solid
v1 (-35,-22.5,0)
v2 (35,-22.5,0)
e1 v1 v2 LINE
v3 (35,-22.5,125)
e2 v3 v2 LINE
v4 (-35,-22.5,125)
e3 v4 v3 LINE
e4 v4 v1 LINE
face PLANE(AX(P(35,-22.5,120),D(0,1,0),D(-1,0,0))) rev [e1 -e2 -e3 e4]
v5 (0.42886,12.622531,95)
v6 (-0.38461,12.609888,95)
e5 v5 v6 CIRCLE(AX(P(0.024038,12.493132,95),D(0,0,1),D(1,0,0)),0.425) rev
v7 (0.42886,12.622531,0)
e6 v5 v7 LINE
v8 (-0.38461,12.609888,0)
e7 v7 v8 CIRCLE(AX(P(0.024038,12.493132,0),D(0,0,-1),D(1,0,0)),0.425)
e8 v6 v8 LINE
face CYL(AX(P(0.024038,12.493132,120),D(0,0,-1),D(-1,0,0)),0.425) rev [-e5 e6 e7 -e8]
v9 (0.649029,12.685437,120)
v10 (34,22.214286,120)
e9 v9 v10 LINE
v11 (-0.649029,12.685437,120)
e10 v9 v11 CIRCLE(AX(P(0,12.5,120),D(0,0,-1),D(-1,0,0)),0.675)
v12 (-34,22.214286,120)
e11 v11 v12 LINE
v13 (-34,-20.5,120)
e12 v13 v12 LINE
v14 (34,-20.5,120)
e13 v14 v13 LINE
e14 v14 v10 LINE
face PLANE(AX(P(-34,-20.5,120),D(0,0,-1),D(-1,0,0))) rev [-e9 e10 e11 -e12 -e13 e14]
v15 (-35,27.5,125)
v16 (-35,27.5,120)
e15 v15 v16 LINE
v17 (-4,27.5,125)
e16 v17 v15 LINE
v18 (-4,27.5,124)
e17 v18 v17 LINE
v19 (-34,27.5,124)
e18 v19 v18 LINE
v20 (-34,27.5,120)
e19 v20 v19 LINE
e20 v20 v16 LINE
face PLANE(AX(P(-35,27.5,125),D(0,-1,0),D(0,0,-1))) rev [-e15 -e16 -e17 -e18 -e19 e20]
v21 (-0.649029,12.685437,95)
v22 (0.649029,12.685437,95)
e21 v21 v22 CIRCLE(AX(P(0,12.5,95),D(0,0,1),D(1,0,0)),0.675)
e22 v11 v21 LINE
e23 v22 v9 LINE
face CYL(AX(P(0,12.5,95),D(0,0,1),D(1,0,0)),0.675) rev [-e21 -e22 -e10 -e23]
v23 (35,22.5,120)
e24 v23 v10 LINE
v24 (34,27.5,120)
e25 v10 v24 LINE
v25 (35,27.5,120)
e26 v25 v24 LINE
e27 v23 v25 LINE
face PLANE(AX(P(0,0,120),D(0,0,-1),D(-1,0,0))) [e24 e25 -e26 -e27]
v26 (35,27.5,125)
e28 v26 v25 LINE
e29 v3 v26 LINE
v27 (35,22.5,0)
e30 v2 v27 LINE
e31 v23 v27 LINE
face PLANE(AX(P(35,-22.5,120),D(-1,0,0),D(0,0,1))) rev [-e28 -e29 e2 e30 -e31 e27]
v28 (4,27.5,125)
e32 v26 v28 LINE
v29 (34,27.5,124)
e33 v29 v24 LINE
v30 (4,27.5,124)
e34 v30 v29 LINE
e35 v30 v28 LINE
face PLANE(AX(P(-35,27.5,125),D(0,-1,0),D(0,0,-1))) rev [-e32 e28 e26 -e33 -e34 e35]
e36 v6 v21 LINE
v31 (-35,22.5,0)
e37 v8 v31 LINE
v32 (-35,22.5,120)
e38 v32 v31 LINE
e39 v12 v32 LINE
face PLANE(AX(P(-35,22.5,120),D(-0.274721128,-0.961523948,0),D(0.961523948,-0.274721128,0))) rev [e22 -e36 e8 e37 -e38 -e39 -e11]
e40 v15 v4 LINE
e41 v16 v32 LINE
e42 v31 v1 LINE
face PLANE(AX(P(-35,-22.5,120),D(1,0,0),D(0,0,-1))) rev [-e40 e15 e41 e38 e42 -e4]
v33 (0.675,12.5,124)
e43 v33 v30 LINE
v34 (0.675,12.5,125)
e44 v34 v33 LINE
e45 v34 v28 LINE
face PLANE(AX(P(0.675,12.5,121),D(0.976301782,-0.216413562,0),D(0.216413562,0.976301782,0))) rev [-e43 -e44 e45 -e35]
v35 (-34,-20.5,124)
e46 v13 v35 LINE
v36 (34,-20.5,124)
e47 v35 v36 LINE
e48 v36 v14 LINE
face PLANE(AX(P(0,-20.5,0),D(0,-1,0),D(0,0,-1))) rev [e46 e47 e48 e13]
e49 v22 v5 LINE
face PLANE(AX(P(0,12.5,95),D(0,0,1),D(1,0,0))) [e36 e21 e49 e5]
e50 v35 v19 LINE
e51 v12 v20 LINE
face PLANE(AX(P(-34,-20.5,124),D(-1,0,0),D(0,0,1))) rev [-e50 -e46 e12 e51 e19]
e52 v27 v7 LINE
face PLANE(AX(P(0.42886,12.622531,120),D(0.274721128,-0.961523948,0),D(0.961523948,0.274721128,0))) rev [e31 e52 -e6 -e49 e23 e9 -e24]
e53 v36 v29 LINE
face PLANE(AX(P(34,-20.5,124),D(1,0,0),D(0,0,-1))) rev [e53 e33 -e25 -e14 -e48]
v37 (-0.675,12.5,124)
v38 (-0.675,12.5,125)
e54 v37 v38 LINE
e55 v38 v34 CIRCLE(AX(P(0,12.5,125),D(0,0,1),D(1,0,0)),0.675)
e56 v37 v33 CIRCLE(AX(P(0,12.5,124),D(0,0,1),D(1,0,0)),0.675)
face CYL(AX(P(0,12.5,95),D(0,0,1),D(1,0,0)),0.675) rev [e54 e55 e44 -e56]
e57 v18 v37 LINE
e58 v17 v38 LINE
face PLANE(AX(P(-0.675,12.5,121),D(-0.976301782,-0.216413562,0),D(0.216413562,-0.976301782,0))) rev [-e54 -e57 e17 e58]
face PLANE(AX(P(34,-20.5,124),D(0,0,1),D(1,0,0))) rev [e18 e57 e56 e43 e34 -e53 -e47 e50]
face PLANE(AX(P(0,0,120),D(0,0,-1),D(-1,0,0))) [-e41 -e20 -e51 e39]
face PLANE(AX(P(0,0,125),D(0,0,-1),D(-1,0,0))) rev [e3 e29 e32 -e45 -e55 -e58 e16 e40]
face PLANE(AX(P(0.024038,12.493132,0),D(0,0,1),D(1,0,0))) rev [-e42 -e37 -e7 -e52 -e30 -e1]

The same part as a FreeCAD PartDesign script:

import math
import FreeCAD as App
import Part
import Sketcher

doc = App.newDocument("Part")
body = doc.addObject("PartDesign::Body", "Body")

sketch1 = body.newObject("Sketcher::SketchObject", "Sketch")
sketch1.AttachmentSupport = (doc.getObject("XY_Plane"), [""])
sketch1.MapMode = "FlatFace"
sketch1.addGeometry([
    Part.LineSegment(App.Vector(-35, -22.5, 0), App.Vector(35, -22.5, 0)),
    Part.LineSegment(App.Vector(35, -22.5, 0), App.Vector(35, 22.5, 0)),
    Part.LineSegment(App.Vector(35, 22.5, 0), App.Vector(0.43, 12.62, 0)),
    Part.ArcOfCircle(Part.Circle(App.Vector(0.02, 12.49, 0), App.Vector(0, 0, 1), 0.42), math.radians(164), math.radians(378)),
    Part.LineSegment(App.Vector(-0.38, 12.61, 0), App.Vector(-35, 22.5, 0)),
    Part.LineSegment(App.Vector(-35, 22.5, 0), App.Vector(-35, -22.5, 0)),
], False)
sketch1.addConstraint([
    Sketcher.Constraint("Coincident", 0, 2, 1, 1),
    Sketcher.Constraint("Coincident", 1, 2, 2, 1),
    Sketcher.Constraint("Coincident", 2, 2, 3, 2),
    Sketcher.Constraint("Coincident", 3, 1, 4, 1),
    Sketcher.Constraint("Coincident", 4, 2, 5, 1),
    Sketcher.Constraint("Coincident", 5, 2, 0, 1),
    Sketcher.Constraint("Horizontal", 0),
    Sketcher.Constraint("Vertical", 1),
    Sketcher.Constraint("Vertical", 5),
    Sketcher.Constraint("Symmetric", 0, 2, 4, 2, -1, 1),
    Sketcher.Constraint("Horizontal", 1, 2, 4, 2),
    Sketcher.Constraint("DistanceX", 0, 1, 0, 2, 70.0),
    Sketcher.Constraint("DistanceY", 1, 1, 1, 2, 45.0),
    Sketcher.Constraint("Radius", 3, 0.425),
    Sketcher.Constraint("DistanceY", 3, 3, 2, 2, 0.129399),
    Sketcher.Constraint("Distance", 2, 35.954528),
    Sketcher.Constraint("Distance", 4, 36.000549),
    Sketcher.Constraint("DistanceX", 3, 1, -1, 1, 0.38461),
])
pad1 = body.newObject("PartDesign::Pad", "Pad")
pad1.Profile = sketch1
pad1.Length = 120

sketch2 = body.newObject("Sketcher::SketchObject", "Sketch001")
sketch2.AttachmentSupport = (doc.getObject("XY_Plane"), [""])
sketch2.MapMode = "FlatFace"
sketch2.AttachmentOffset = App.Placement(App.Vector(0, 0, 120), App.Rotation())
sketch2.addGeometry([
    Part.LineSegment(App.Vector(-35, 28, 0), App.Vector(-35, -22, 0)),
    Part.LineSegment(App.Vector(-35, -22, 0), App.Vector(35, -22, 0)),
    Part.LineSegment(App.Vector(35, -22, 0), App.Vector(35, 28, 0)),
    Part.LineSegment(App.Vector(35, 28, 0), App.Vector(-35, 28, 0)),
], False)
sketch2.addConstraint([
    Sketcher.Constraint("Coincident", 0, 2, 1, 1),
    Sketcher.Constraint("Coincident", 1, 2, 2, 1),
    Sketcher.Constraint("Coincident", 2, 2, 3, 1),
    Sketcher.Constraint("Coincident", 3, 2, 0, 1),
    Sketcher.Constraint("Vertical", 0),
    Sketcher.Constraint("Horizontal", 1),
    Sketcher.Constraint("Vertical", 2),
    Sketcher.Constraint("Horizontal", 3),
    Sketcher.Constraint("DistanceX", 1, 1, 1, 2, 70.0),
    Sketcher.Constraint("DistanceY", 0, 2, 0, 1, 50.0),
    Sketcher.Constraint("DistanceX", 0, 2, -1, 1, 35.0),
    Sketcher.Constraint("DistanceY", 0, 2, -1, 1, 22.5),
])
pad2 = body.newObject("PartDesign::Pad", "Pad001")
pad2.Profile = sketch2
pad2.Length = 5

sketch3 = body.newObject("Sketcher::SketchObject", "Sketch002")
sketch3.AttachmentSupport = (doc.getObject("XZ_Plane"), [""])
sketch3.MapMode = "FlatFace"
sketch3.AttachmentOffset = App.Placement(App.Vector(0, 0, -27.5), App.Rotation())
sketch3.addGeometry([
    Part.LineSegment(App.Vector(-34, 120, 0), App.Vector(-34, 124, 0)),
    Part.LineSegment(App.Vector(-34, 124, 0), App.Vector(34, 124, 0)),
    Part.LineSegment(App.Vector(34, 124, 0), App.Vector(34, 120, 0)),
    Part.LineSegment(App.Vector(34, 120, 0), App.Vector(-34, 120, 0)),
], False)
sketch3.addConstraint([
    Sketcher.Constraint("Coincident", 0, 2, 1, 1),
    Sketcher.Constraint("Coincident", 1, 2, 2, 1),
    Sketcher.Constraint("Coincident", 2, 2, 3, 1),
    Sketcher.Constraint("Coincident", 3, 2, 0, 1),
    Sketcher.Constraint("Vertical", 0),
    Sketcher.Constraint("Horizontal", 1),
    Sketcher.Constraint("Vertical", 2),
    Sketcher.Constraint("Horizontal", 3),
    Sketcher.Constraint("DistanceX", 1, 1, 1, 2, 68.0),
    Sketcher.Constraint("DistanceY", 0, 1, 0, 2, 4.0),
    Sketcher.Constraint("DistanceX", 0, 2, -1, 1, 34.0),
    Sketcher.Constraint("DistanceY", -1, 1, 0, 2, 124.0),
])
pocket1 = body.newObject("PartDesign::Pocket", "Pocket")
pocket1.Profile = sketch3
pocket1.Length = 48
pocket1.Reversed = True

sketch4 = body.newObject("Sketcher::SketchObject", "Sketch003")
sketch4.AttachmentSupport = (doc.getObject("XY_Plane"), [""])
sketch4.MapMode = "FlatFace"
sketch4.addGeometry(Part.Circle(App.Vector(0, 12.5, 0), App.Vector(0, 0, 1), 0.4), False)
sketch4.addConstraint([
    Sketcher.Constraint("PointOnObject", 0, 3, -2),
    Sketcher.Constraint("Diameter", 0, 0.8),
    Sketcher.Constraint("DistanceY", -1, 1, 0, 3, 12.5),
])
pocket2 = body.newObject("PartDesign::Pocket", "Pocket001")
pocket2.Profile = sketch4
pocket2.Length = 127
pocket2.Reversed = True

sketch5 = body.newObject("Sketcher::SketchObject", "Sketch004")
sketch5.AttachmentSupport = (doc.getObject("XY_Plane"), [""])
sketch5.MapMode = "FlatFace"
sketch5.AttachmentOffset = App.Placement(App.Vector(0, 0, 125), App.Rotation())
sketch5.addGeometry(Part.Circle(App.Vector(0, 12.5, 0), App.Vector(0, 0, 1), 0.7), False)
sketch5.addConstraint([
    Sketcher.Constraint("PointOnObject", 0, 3, -2),
    Sketcher.Constraint("Diameter", 0, 1.35),
    Sketcher.Constraint("DistanceY", -1, 1, 0, 3, 12.5),
])
pocket3 = body.newObject("PartDesign::Pocket", "Pocket002")
pocket3.Profile = sketch5
pocket3.Length = 30

sketch6 = body.newObject("Sketcher::SketchObject", "Sketch005")
sketch6.AttachmentSupport = (doc.getObject("XY_Plane"), [""])
sketch6.MapMode = "FlatFace"
sketch6.AttachmentOffset = App.Placement(App.Vector(0, 0, 125), App.Rotation())
sketch6.addGeometry([
    Part.LineSegment(App.Vector(0.7, 12.5, 0), App.Vector(4, 27.5, 0)),
    Part.LineSegment(App.Vector(4, 27.5, 0), App.Vector(-4, 27.5, 0)),
    Part.LineSegment(App.Vector(-4, 27.5, 0), App.Vector(-0.7, 12.5, 0)),
    Part.LineSegment(App.Vector(-0.7, 12.5, 0), App.Vector(0.7, 12.5, 0)),
], False)
sketch6.addConstraint([
    Sketcher.Constraint("Coincident", 0, 2, 1, 1),
    Sketcher.Constraint("Coincident", 1, 2, 2, 1),
    Sketcher.Constraint("Coincident", 2, 2, 3, 1),
    Sketcher.Constraint("Coincident", 3, 2, 0, 1),
    Sketcher.Constraint("Horizontal", 1),
    Sketcher.Constraint("Horizontal", 3),
    Sketcher.Constraint("Equal", 0, 2),
    Sketcher.Constraint("DistanceX", 1, 2, 1, 1, 8.0),
    Sketcher.Constraint("DistanceX", -1, 1, 0, 2, 4.0),
    Sketcher.Constraint("DistanceY", 2, 2, 1, 2, 15.0),
    Sketcher.Constraint("DistanceX", 3, 1, 3, 2, 1.35),
    Sketcher.Constraint("DistanceY", -1, 1, 0, 2, 27.5),
])
pocket4 = body.newObject("PartDesign::Pocket", "Pocket003")
pocket4.Profile = sketch6
pocket4.Length = 4

doc.recompute()
